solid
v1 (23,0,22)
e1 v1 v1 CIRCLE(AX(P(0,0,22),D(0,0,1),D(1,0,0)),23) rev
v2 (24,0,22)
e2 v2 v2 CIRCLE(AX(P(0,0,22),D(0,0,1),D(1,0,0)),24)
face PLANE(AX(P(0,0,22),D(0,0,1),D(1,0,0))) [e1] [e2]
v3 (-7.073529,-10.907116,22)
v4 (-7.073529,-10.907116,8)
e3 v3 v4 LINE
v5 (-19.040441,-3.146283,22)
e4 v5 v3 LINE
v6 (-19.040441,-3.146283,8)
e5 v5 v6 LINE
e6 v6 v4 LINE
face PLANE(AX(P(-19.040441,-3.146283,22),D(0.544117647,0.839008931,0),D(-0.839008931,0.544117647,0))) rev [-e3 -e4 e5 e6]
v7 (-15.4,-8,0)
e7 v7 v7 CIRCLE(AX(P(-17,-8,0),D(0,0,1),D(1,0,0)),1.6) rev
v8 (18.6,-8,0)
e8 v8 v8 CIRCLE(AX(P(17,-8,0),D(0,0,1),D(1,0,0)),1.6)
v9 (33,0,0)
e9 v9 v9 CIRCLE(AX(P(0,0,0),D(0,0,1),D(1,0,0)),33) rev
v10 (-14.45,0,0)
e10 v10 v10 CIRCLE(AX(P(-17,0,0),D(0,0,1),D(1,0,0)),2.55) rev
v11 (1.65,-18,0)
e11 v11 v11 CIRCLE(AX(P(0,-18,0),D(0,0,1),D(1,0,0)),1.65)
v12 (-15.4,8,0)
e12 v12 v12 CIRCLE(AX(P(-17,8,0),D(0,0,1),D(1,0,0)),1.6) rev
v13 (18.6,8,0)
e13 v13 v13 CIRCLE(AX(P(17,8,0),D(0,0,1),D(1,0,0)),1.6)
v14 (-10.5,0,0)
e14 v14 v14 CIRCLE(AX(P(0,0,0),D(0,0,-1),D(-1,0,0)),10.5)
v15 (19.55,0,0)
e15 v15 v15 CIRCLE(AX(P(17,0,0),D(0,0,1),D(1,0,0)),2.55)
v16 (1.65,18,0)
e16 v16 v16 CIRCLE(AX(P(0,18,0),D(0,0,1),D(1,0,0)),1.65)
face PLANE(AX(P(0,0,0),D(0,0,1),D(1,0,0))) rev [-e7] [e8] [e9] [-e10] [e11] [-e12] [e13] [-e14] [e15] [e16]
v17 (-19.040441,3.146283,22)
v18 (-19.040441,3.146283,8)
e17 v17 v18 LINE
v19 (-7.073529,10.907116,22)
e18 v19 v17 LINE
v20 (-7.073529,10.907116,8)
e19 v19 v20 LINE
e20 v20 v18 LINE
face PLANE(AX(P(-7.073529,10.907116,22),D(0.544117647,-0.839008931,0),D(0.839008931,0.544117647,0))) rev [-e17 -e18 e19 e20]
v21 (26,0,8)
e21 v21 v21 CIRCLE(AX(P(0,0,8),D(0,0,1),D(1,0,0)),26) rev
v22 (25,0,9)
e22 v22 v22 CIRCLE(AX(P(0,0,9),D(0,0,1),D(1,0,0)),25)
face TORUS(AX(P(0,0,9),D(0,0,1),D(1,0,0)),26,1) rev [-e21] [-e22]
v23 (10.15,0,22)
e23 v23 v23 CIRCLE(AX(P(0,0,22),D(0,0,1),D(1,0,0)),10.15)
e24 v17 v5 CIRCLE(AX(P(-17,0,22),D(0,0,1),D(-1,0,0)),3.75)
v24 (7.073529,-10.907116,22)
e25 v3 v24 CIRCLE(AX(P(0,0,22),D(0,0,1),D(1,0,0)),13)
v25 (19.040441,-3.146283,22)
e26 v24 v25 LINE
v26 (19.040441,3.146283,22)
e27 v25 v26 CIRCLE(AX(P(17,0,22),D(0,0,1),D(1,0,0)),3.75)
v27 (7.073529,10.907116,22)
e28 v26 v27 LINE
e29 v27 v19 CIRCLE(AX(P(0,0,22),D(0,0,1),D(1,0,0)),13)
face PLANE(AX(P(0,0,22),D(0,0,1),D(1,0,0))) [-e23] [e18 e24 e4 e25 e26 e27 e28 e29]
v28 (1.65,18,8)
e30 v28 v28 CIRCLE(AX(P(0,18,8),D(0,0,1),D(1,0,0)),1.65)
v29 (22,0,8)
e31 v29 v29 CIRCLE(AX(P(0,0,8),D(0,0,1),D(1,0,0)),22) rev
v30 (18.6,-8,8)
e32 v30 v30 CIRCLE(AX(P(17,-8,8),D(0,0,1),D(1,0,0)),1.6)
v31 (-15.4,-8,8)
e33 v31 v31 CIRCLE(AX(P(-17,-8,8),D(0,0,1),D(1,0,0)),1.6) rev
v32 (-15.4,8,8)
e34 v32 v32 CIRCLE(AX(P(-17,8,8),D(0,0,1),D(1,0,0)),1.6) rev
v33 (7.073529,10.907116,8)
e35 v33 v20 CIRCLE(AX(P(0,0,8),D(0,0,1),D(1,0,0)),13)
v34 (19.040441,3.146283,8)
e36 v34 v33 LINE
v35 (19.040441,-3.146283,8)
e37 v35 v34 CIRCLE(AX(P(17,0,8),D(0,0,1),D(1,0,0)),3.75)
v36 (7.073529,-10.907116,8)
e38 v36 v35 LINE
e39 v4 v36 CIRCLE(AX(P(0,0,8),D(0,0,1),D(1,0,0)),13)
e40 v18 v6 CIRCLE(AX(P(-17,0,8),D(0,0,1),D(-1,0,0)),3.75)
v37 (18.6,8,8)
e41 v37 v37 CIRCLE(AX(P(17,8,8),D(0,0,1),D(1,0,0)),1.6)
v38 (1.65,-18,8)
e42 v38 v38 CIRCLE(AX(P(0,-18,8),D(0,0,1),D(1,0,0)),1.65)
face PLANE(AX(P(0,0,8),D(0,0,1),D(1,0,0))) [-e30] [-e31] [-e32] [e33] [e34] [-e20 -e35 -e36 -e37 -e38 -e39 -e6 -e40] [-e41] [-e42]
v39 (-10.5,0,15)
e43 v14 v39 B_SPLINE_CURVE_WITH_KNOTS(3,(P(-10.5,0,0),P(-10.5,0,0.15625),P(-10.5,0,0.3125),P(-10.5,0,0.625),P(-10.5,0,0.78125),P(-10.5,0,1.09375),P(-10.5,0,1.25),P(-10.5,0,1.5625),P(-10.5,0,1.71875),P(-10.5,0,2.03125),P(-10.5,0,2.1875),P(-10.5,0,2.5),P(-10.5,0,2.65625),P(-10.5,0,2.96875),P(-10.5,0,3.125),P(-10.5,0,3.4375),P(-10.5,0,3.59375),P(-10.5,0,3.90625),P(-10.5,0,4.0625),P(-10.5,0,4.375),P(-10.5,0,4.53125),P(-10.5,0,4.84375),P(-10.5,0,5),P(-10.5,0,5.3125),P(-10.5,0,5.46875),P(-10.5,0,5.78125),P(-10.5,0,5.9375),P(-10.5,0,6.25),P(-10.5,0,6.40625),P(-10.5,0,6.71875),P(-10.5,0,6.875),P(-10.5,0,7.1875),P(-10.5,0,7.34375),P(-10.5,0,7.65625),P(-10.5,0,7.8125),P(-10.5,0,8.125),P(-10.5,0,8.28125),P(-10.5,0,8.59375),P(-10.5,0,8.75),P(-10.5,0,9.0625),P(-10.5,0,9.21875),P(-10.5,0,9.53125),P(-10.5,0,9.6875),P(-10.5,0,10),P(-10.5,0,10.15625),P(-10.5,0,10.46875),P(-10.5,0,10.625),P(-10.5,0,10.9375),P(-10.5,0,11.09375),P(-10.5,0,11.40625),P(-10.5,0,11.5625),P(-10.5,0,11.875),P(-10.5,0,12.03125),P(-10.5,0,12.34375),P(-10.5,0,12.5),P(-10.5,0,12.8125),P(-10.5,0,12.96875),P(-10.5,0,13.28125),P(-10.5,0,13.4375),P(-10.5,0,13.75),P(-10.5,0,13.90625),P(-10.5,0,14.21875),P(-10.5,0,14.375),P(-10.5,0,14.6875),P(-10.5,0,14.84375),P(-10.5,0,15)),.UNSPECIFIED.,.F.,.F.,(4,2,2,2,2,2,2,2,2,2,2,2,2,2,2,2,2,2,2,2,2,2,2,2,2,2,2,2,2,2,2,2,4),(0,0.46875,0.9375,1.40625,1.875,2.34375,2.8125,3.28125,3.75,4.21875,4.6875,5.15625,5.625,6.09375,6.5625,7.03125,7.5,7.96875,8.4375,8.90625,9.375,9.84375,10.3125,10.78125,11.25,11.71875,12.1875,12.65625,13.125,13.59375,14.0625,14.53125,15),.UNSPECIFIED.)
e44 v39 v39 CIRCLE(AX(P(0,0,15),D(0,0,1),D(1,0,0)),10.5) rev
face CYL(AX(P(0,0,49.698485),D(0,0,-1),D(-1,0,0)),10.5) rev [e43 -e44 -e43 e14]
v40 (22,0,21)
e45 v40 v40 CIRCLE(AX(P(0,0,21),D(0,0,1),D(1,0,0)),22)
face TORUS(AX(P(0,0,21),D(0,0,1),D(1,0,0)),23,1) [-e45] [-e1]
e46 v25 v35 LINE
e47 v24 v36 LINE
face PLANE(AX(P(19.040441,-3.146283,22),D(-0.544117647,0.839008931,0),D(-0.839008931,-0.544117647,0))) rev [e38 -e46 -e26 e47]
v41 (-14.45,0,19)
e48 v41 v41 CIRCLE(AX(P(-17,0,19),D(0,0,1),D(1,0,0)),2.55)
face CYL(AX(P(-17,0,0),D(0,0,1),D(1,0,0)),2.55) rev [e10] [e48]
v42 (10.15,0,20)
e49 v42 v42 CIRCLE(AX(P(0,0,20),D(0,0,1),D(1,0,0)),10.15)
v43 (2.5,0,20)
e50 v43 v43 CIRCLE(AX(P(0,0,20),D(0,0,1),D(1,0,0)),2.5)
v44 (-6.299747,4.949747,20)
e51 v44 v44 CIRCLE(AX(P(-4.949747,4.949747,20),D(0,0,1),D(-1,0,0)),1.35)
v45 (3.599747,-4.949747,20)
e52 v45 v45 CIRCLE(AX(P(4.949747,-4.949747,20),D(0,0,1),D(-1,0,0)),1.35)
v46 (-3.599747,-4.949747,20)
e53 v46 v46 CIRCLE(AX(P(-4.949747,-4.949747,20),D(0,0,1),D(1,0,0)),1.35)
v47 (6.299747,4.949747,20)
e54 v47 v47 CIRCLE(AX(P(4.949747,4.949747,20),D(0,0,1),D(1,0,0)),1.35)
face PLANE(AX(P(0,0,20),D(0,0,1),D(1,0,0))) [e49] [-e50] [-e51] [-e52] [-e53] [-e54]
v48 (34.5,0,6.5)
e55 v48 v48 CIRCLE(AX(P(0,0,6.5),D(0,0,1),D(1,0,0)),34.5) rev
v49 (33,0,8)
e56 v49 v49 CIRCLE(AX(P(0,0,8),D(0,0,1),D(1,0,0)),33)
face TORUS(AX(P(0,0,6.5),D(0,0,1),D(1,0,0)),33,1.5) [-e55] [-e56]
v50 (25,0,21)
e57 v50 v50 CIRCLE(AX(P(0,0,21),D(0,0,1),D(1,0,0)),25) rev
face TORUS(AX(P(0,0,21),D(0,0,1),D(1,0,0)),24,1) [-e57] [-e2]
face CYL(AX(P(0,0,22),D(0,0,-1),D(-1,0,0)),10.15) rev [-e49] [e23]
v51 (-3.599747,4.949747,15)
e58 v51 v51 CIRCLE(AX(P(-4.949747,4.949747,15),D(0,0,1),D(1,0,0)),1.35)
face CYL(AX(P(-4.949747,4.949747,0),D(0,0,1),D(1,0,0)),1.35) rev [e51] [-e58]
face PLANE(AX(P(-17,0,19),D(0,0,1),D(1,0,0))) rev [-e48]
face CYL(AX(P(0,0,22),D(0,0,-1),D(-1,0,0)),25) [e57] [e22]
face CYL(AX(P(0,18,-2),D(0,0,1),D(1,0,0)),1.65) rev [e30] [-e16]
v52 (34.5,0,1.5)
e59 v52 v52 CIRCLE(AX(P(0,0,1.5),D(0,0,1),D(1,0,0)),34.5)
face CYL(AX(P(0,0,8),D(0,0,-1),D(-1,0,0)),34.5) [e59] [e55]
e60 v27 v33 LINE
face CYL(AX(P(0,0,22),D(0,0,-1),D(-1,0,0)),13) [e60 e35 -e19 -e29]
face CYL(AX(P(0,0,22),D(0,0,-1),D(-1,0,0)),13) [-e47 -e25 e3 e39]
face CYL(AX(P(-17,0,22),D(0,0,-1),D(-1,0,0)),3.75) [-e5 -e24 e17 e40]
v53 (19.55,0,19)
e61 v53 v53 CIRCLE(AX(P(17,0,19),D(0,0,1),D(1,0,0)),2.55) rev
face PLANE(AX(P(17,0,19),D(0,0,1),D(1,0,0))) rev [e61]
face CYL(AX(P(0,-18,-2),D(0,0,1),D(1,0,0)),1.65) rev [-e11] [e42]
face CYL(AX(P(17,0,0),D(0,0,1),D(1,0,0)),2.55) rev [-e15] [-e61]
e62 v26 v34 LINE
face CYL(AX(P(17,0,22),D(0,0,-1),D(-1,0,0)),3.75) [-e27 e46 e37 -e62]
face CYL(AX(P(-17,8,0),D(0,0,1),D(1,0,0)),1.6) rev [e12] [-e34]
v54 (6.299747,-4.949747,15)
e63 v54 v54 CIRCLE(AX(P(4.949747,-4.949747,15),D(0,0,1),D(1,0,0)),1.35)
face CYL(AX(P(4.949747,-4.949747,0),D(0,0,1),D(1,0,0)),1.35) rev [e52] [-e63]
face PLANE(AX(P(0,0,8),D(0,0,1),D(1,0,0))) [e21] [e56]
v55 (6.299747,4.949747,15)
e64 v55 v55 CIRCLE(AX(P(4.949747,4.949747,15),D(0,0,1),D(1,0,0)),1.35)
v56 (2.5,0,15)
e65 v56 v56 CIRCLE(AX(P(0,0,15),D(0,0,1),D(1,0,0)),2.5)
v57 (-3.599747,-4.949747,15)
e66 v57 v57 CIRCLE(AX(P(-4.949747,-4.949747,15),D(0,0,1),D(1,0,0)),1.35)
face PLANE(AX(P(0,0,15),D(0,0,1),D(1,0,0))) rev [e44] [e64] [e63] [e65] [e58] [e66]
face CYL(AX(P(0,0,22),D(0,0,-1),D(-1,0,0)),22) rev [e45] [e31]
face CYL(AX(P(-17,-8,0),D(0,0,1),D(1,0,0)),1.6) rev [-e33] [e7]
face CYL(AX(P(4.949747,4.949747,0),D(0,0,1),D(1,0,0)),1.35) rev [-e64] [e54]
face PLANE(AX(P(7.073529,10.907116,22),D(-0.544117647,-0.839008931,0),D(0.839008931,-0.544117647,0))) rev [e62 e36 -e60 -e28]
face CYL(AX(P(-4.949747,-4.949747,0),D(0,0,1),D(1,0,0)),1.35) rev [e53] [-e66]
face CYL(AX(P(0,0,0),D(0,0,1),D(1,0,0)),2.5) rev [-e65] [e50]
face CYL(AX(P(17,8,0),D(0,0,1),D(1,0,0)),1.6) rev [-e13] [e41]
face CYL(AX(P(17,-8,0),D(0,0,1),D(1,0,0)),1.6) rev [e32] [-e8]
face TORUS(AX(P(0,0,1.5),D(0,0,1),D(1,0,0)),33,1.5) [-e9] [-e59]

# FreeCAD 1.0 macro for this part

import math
import FreeCAD as App
import Part
import Sketcher

V = App.Vector


def edges_at(feature, points):
    """Names of the edges that pass closest to the given points."""
    edges = feature.Shape.Edges
    near = lambda p: min(range(len(edges)), key=lambda i: edges[i].distToShape(Part.Vertex(*p))[0])
    return sorted({f"Edge{near(p) + 1}" for p in points})

doc = App.newDocument("Part")
params = doc.addObject("Spreadsheet::Sheet", "Params")
for row, (alias, value) in enumerate([
    ("sketch1_diameter", "69 mm"),
    ("pad1_length", "8 mm"),
    ("sketch2_diameter", "50 mm"),
    ("sketch2_diameter2", "44 mm"),
    ("pad2_length", "14 mm"),
    ("fillet_radius", "1 mm"),
    ("sketch3_diameter", "26 mm"),
    ("sketch3_diameter2", "20.3 mm"),
    ("pad3_length", "14 mm"),
    ("sketch4_diameter", "5.1 mm"),
    ("sketch4_diameter2", "3.2 mm"),
    ("sketch5_diameter", "21 mm"),
    ("pad4_length", "12 mm"),
    ("sketch6_radius", "10.5 mm"),
    ("pocket2_length", "15 mm"),
    ("sketch7_diameter", "5 mm"),
    ("sketch7_diameter2", "2.7 mm"),
    ("sketch8_radius", "13 mm"),
    ("sketch8_diameter", "5.1 mm"),
    ("sketch8_radius2", "3.75 mm"),
    ("pad5_length", "14 mm"),
    ("sketch9_diameter", "5.1 mm"),
    ("pad6_length", "3 mm"),
    ("fillet2_radius", "1 mm"),
    ("fillet3_radius", "1.5 mm"),
    ("sketch10_diameter", "3.3 mm"),
    ("pocket4_length", "10 mm"),
], start=1):
    params.set(f"A{row}", alias)
    params.set(f"B{row}", "=" + value)
    params.setAlias(f"B{row}", alias)

body = doc.addObject("PartDesign::Body", "Body")

# Sketch on XY plane
sketch1 = doc.addObject("Sketcher::SketchObject", "Sketch")
body.addObject(sketch1)
sketch1.AttachmentSupport = (doc.XY_Plane, [""])
sketch1.MapMode = "FlatFace"
sketch1.addGeometry(Part.Circle(V(0, 0, 0), V(0, 0, 1), 34), False)
sketch1.addConstraint([
    Sketcher.Constraint("Coincident", 0, 3, -1, 1),
    Sketcher.Constraint("Diameter", 0, 69.0),
])
sketch1.setExpression("Constraints[1]", "Params.sketch1_diameter")
pad1 = doc.addObject("PartDesign::Pad", "Pad")
body.addObject(pad1)
pad1.Profile = sketch1
pad1.setExpression("Length", "Params.pad1_length")

# Sketch on XY plane
sketch2 = doc.addObject("Sketcher::SketchObject", "Sketch001")
body.addObject(sketch2)
sketch2.AttachmentSupport = (doc.XY_Plane, [""])
sketch2.MapMode = "FlatFace"
sketch2.AttachmentOffset = App.Placement(V(0, 0, 8), App.Rotation())
sketch2.addGeometry([
    Part.Circle(V(0, 0, 0), V(0, 0, 1), 25),
    Part.Circle(V(0, 0, 0), V(0, 0, 1), 22),
], False)
sketch2.addConstraint([
    Sketcher.Constraint("Coincident", 0, 3, -1, 1),
    Sketcher.Constraint("Coincident", 1, 3, -1, 1),
    Sketcher.Constraint("Diameter", 0, 50.0),
    Sketcher.Constraint("Diameter", 1, 44.0),
])
sketch2.setExpression("Constraints[2]", "Params.sketch2_diameter")
sketch2.setExpression("Constraints[3]", "Params.sketch2_diameter2")
pad2 = doc.addObject("PartDesign::Pad", "Pad001")
body.addObject(pad2)
pad2.Profile = sketch2
pad2.setExpression("Length", "Params.pad2_length")
doc.recompute()

fillet = doc.addObject("PartDesign::Fillet", "Fillet")
body.addObject(fillet)
fillet.Base = (pad2, edges_at(pad2, [(-25, 0, 8)]))
fillet.setExpression("Radius", "Params.fillet_radius")

# Sketch on XY plane
sketch3 = doc.addObject("Sketcher::SketchObject", "Sketch002")
body.addObject(sketch3)
sketch3.AttachmentSupport = (doc.XY_Plane, [""])
sketch3.MapMode = "FlatFace"
sketch3.AttachmentOffset = App.Placement(V(0, 0, 8), App.Rotation())
sketch3.addGeometry([
    Part.Circle(V(0, 0, 0), V(0, 0, 1), 13),
    Part.Circle(V(0, 0, 0), V(0, 0, 1), 10),
], False)
sketch3.addConstraint([
    Sketcher.Constraint("Coincident", 0, 3, -1, 1),
    Sketcher.Constraint("Coincident", 1, 3, -1, 1),
    Sketcher.Constraint("Diameter", 0, 26.0),
    Sketcher.Constraint("Diameter", 1, 20.3),
])
sketch3.setExpression("Constraints[2]", "Params.sketch3_diameter")
sketch3.setExpression("Constraints[3]", "Params.sketch3_diameter2")
pad3 = doc.addObject("PartDesign::Pad", "Pad002")
body.addObject(pad3)
pad3.Profile = sketch3
pad3.setExpression("Length", "Params.pad3_length")

# Sketch on XY plane
sketch4 = doc.addObject("Sketcher::SketchObject", "Sketch003")
body.addObject(sketch4)
sketch4.AttachmentSupport = (doc.XY_Plane, [""])
sketch4.MapMode = "FlatFace"
sketch4.AttachmentOffset = App.Placement(V(0, 0, 8), App.Rotation())
sketch4.addGeometry([
    Part.Circle(V(-17, 0, 0), V(0, 0, 1), 2.5),  # 0
    Part.Circle(V(-17, 8, 0), V(0, 0, 1), 1.6),  # 1
    Part.Circle(V(-17, -8, 0), V(0, 0, 1), 1.6),  # 2
    Part.Circle(V(17, -8, 0), V(0, 0, 1), 1.6),  # 3
    Part.Circle(V(17, 0, 0), V(0, 0, 1), 2.5),  # 4
    Part.Circle(V(17, 8, 0), V(0, 0, 1), 1.6),  # 5
], False)
sketch4.addConstraint([
    Sketcher.Constraint("Equal", 1, 2),
    Sketcher.Constraint("Equal", 2, 3),
    Sketcher.Constraint("Equal", 0, 4),
    Sketcher.Constraint("Equal", 3, 5),
    Sketcher.Constraint("Symmetric", 1, 3, 3, 3, -1, 1),
    Sketcher.Constraint("Symmetric", 0, 3, 4, 3, -1, 1),
    Sketcher.Constraint("Symmetric", 2, 3, 5, 3, -1, 1),
    Sketcher.Constraint("Symmetric", 2, 3, 3, 3, -2),
    Sketcher.Constraint("PointOnObject", 0, 3, -1),
    Sketcher.Constraint("Vertical", 0, 3, 1, 3),
    Sketcher.Constraint("Diameter", 0, 5.1),
    Sketcher.Constraint("Diameter", 1, 3.2),
    Sketcher.Constraint("DistanceX", 0, 3, -1, 1, 17.0),
    Sketcher.Constraint("DistanceY", -1, 1, 1, 3, 8.0),
])
sketch4.setExpression("Constraints[10]", "Params.sketch4_diameter")
sketch4.setExpression("Constraints[11]", "Params.sketch4_diameter2")
pocket1 = doc.addObject("PartDesign::Pocket", "Pocket")
body.addObject(pocket1)
pocket1.Profile = sketch4
pocket1.Type = "ThroughAll"

# Sketch on XY plane
sketch5 = doc.addObject("Sketcher::SketchObject", "Sketch004")
body.addObject(sketch5)
sketch5.AttachmentSupport = (doc.XY_Plane, [""])
sketch5.MapMode = "FlatFace"
sketch5.AttachmentOffset = App.Placement(V(0, 0, 8), App.Rotation())
sketch5.addGeometry(Part.Circle(V(0, 0, 0), V(0, 0, 1), 10), False)
sketch5.addConstraint([
    Sketcher.Constraint("Coincident", 0, 3, -1, 1),
    Sketcher.Constraint("Diameter", 0, 21.0),
])
sketch5.setExpression("Constraints[1]", "Params.sketch5_diameter")
pad4 = doc.addObject("PartDesign::Pad", "Pad003")
body.addObject(pad4)
pad4.Profile = sketch5
pad4.setExpression("Length", "Params.pad4_length")

# Sketch on XY plane
sketch6 = doc.addObject("Sketcher::SketchObject", "Sketch005")
body.addObject(sketch6)
sketch6.AttachmentSupport = (doc.XY_Plane, [""])
sketch6.MapMode = "FlatFace"
sketch6.addGeometry([
    Part.ArcOfCircle(Part.Circle(V(0, 0, 0), V(0, 0, 1), 10), math.radians(-35), math.radians(215)),
    Part.ArcOfCircle(Part.Circle(V(0, 0, 0), V(0, 0, 1), 10), math.radians(-145), math.radians(-35)),
], False)
sketch6.addConstraint([
    Sketcher.Constraint("Tangent", 0, 1, 1, 2),
    Sketcher.Constraint("Coincident", 1, 1, 0, 2),
    Sketcher.Constraint("Coincident", 0, 3, -1, 1),
    Sketcher.Constraint("Horizontal", 0, 1, 1, 1),
    Sketcher.Constraint("Radius", 0, 10.5),
    Sketcher.Constraint("DistanceY", 0, 1, -1, 1, 6.0),
])
sketch6.setExpression("Constraints[4]", "Params.sketch6_radius")
pocket2 = doc.addObject("PartDesign::Pocket", "Pocket001")
body.addObject(pocket2)
pocket2.Profile = sketch6
pocket2.setExpression("Length", "Params.pocket2_length")
pocket2.Reversed = True

# Sketch on XY plane
sketch7 = doc.addObject("Sketcher::SketchObject", "Sketch006")
body.addObject(sketch7)
sketch7.AttachmentSupport = (doc.XY_Plane, [""])
sketch7.MapMode = "FlatFace"
sketch7.AttachmentOffset = App.Placement(V(0, 0, 20), App.Rotation())
sketch7.addGeometry([
    Part.Circle(V(0, 0, 0), V(0, 0, 1), 2.5),  # 0
    Part.Circle(V(4.9, 4.9, 0), V(0, 0, 1), 1.4),  # 1
    Part.Circle(V(-4.9, 4.9, 0), V(0, 0, 1), 1.4),  # 2
    Part.Circle(V(-4.9, -4.9, 0), V(0, 0, 1), 1.4),  # 3
    Part.Circle(V(4.9, -4.9, 0), V(0, 0, 1), 1.4),  # 4
], False)
sketch7.addConstraint([
    Sketcher.Constraint("Coincident", 0, 3, -1, 1),
    Sketcher.Constraint("Equal", 1, 2),
    Sketcher.Constraint("Equal", 2, 3),
    Sketcher.Constraint("Equal", 3, 4),
    Sketcher.Constraint("Symmetric", 1, 3, 3, 3, -1, 1),
    Sketcher.Constraint("Symmetric", 2, 3, 4, 3, -1, 1),
    Sketcher.Constraint("Symmetric", 1, 3, 2, 3, -2),
    Sketcher.Constraint("Diameter", 0, 5.0),
    Sketcher.Constraint("Diameter", 1, 2.7),
    Sketcher.Constraint("DistanceX", -1, 1, 1, 3, 4.949747),
    Sketcher.Constraint("DistanceY", -1, 1, 1, 3, 4.949747),
])
sketch7.setExpression("Constraints[7]", "Params.sketch7_diameter")
sketch7.setExpression("Constraints[8]", "Params.sketch7_diameter2")
pocket3 = doc.addObject("PartDesign::Pocket", "Pocket002")
body.addObject(pocket3)
pocket3.Profile = sketch7
pocket3.Type = "ThroughAll"

# Sketch on XY plane
sketch8 = doc.addObject("Sketcher::SketchObject", "Sketch007")
body.addObject(sketch8)
sketch8.AttachmentSupport = (doc.XY_Plane, [""])
sketch8.MapMode = "FlatFace"
sketch8.AttachmentOffset = App.Placement(V(0, 0, 8), App.Rotation())
sketch8.addGeometry([
    Part.LineSegment(V(19, 3.1, 0), V(7.1, 10.9, 0)),  # 0
    Part.ArcOfCircle(Part.Circle(V(0, 0, 0), V(0, 0, 1), 13), math.radians(-57), math.radians(57)),  # 1
    Part.LineSegment(V(7.1, -10.9, 0), V(19, -3.1, 0)),  # 2
    Part.ArcOfCircle(Part.Circle(V(17, 0, 0), V(0, 0, 1), 3.8), math.radians(-57), math.radians(57)),  # 3
    Part.Circle(V(17, 0, 0), V(0, 0, 1), 2.5),  # 4
    Part.LineSegment(V(-19, -3.1, 0), V(-7.1, -10.9, 0)),  # 5
    Part.ArcOfCircle(Part.Circle(V(0, 0, 0), V(0, 0, 1), 13), math.radians(123), math.radians(237)),  # 6
    Part.LineSegment(V(-7.1, 10.9, 0), V(-19, 3.1, 0)),  # 7
    Part.ArcOfCircle(Part.Circle(V(-17, 0, 0), V(0, 0, 1), 3.8), math.radians(123), math.radians(237)),  # 8
    Part.Circle(V(-17, 0, 0), V(0, 0, 1), 2.5),  # 9
], False)
sketch8.addConstraint([
    Sketcher.Constraint("Tangent", 0, 2, 1, 2),
    Sketcher.Constraint("Tangent", 1, 1, 2, 1),
    Sketcher.Constraint("Tangent", 2, 2, 3, 1),
    Sketcher.Constraint("Tangent", 3, 2, 0, 1),
    Sketcher.Constraint("Tangent", 5, 2, 6, 2),
    Sketcher.Constraint("Tangent", 6, 1, 7, 1),
    Sketcher.Constraint("Tangent", 7, 2, 8, 1),
    Sketcher.Constraint("Tangent", 8, 2, 5, 1),
    Sketcher.Constraint("Coincident", 1, 3, -1, 1),
    Sketcher.Constraint("Coincident", 6, 3, -1, 1),
    Sketcher.Constraint("Coincident", 4, 3, 3, 3),
    Sketcher.Constraint("Coincident", 9, 3, 8, 3),
    Sketcher.Constraint("Equal", 1, 6),
    Sketcher.Constraint("Equal", 3, 8),
    Sketcher.Constraint("Equal", 4, 9),
    Sketcher.Constraint("Symmetric", 3, 3, 8, 3, -1, 1),
    Sketcher.Constraint("PointOnObject", 3, 3, -1),
    Sketcher.Constraint("Radius", 1, 13.0),
    Sketcher.Constraint("Diameter", 4, 5.1),
    Sketcher.Constraint("Radius", 3, 3.75),
    Sketcher.Constraint("DistanceX", -1, 1, 3, 3, 17.0),
])
sketch8.setExpression("Constraints[17]", "Params.sketch8_radius")
sketch8.setExpression("Constraints[18]", "Params.sketch8_diameter")
sketch8.setExpression("Constraints[19]", "Params.sketch8_radius2")
pad5 = doc.addObject("PartDesign::Pad", "Pad004")
body.addObject(pad5)
pad5.Profile = sketch8
pad5.setExpression("Length", "Params.pad5_length")

# Sketch on XY plane
sketch9 = doc.addObject("Sketcher::SketchObject", "Sketch008")
body.addObject(sketch9)
sketch9.AttachmentSupport = (doc.XY_Plane, [""])
sketch9.MapMode = "FlatFace"
sketch9.AttachmentOffset = App.Placement(V(0, 0, 22), App.Rotation())
sketch9.addGeometry([
    Part.Circle(V(-17, 0, 0), V(0, 0, 1), 2.5),
    Part.Circle(V(17, 0, 0), V(0, 0, 1), 2.5),
], False)
sketch9.addConstraint([
    Sketcher.Constraint("Equal", 0, 1),
    Sketcher.Constraint("Symmetric", 0, 3, 1, 3, -1, 1),
    Sketcher.Constraint("PointOnObject", 0, 3, -1),
    Sketcher.Constraint("Diameter", 0, 5.1),
    Sketcher.Constraint("DistanceX", 0, 3, -1, 1, 17.0),
])
sketch9.setExpression("Constraints[3]", "Params.sketch9_diameter")
pad6 = doc.addObject("PartDesign::Pad", "Pad005")
body.addObject(pad6)
pad6.Profile = sketch9
pad6.setExpression("Length", "Params.pad6_length")
pad6.Reversed = True
doc.recompute()

fillet2 = doc.addObject("PartDesign::Fillet", "Fillet001")
body.addObject(fillet2)
fillet2.Base = (pad6, edges_at(pad6, [(-25, 0, 22), (-22, 0, 22)]))
fillet2.setExpression("Radius", "Params.fillet2_radius")
doc.recompute()

fillet3 = doc.addObject("PartDesign::Fillet", "Fillet002")
body.addObject(fillet3)
fillet3.Base = (fillet2, edges_at(fillet2, [(-34.5, 0, 0), (-34.5, 0, 8)]))
fillet3.setExpression("Radius", "Params.fillet3_radius")

# Sketch on XY plane
sketch10 = doc.addObject("Sketcher::SketchObject", "Sketch009")
body.addObject(sketch10)
sketch10.AttachmentSupport = (doc.XY_Plane, [""])
sketch10.MapMode = "FlatFace"
sketch10.AttachmentOffset = App.Placement(V(0, 0, 8), App.Rotation())
sketch10.addGeometry([
    Part.Circle(V(0, 18, 0), V(0, 0, 1), 1.6),
    Part.Circle(V(0, -18, 0), V(0, 0, 1), 1.6),
], False)
sketch10.addConstraint([
    Sketcher.Constraint("Equal", 0, 1),
    Sketcher.Constraint("Symmetric", 0, 3, 1, 3, -1, 1),
    Sketcher.Constraint("PointOnObject", 0, 3, -2),
    Sketcher.Constraint("Diameter", 0, 3.3),
    Sketcher.Constraint("DistanceY", -1, 1, 0, 3, 18.0),
])
sketch10.setExpression("Constraints[3]", "Params.sketch10_diameter")
pocket4 = doc.addObject("PartDesign::Pocket", "Pocket003")
body.addObject(pocket4)
pocket4.Profile = sketch10
pocket4.setExpression("Length", "Params.pocket4_length")

doc.recompute()
